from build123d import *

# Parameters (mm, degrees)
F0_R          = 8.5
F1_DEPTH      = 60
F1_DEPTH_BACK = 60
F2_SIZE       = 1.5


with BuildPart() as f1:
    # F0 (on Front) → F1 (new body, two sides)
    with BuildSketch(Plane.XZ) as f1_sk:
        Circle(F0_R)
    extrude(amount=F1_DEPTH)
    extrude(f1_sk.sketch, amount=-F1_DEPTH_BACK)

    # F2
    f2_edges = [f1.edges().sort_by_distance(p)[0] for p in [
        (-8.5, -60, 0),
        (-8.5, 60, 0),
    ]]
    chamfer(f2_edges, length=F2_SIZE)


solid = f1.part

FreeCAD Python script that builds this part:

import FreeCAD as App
import Part
import Sketcher

V = App.Vector
Q = App.Units.Quantity


def edges_at(feature, points):
    """Names of the edges that pass closest to the given points."""
    edges = feature.Shape.Edges
    near = lambda p: min(range(len(edges)), key=lambda i: edges[i].distToShape(Part.Vertex(*p))[0])
    return sorted({f"Edge{near(p) + 1}" for p in points})

doc = App.newDocument("Part")
params = doc.addObject("Spreadsheet::Sheet", "Params")
for row, (alias, value) in enumerate([
    ("sketch1_diameter", "17 mm"),
    ("pad1_length", "60 mm"),
    ("pad1_length2", "60 mm"),
    ("chamfer_size", "1.5 mm"),
], start=1):
    params.set(f"A{row}", alias)
    params.set(f"B{row}", "=" + value)
    params.setAlias(f"B{row}", alias)

body = doc.addObject("PartDesign::Body", "Body")

# Sketch on XZ plane
sketch1 = doc.addObject("Sketcher::SketchObject", "Sketch")
body.addObject(sketch1)
sketch1.AttachmentSupport = (doc.XZ_Plane, [""])
sketch1.MapMode = "FlatFace"
sketch1.addGeometry(Part.Circle(V(0, 0, 0), V(0, 0, 1), 8.5), False)
sketch1.addConstraint([
    Sketcher.Constraint("Coincident", 0, 3, -1, 1),
    Sketcher.Constraint("Diameter", 0, Q("17 mm")),
])
sketch1.setExpression("Constraints[1]", "Params.sketch1_diameter")
pad1 = doc.addObject("PartDesign::Pad", "Pad")
body.addObject(pad1)
pad1.Profile = sketch1
pad1.Type = "TwoLengths"
pad1.setExpression("Length", "Params.pad1_length")
pad1.setExpression("Length2", "Params.pad1_length2")
doc.recompute()

chamfer = doc.addObject("PartDesign::Chamfer", "Chamfer")
body.addObject(chamfer)
chamfer.Base = (pad1, edges_at(pad1, [(-8.5, -60, 0), (-8.5, 60, 0)]))
chamfer.setExpression("Size", "Params.chamfer_size")

doc.recompute()
